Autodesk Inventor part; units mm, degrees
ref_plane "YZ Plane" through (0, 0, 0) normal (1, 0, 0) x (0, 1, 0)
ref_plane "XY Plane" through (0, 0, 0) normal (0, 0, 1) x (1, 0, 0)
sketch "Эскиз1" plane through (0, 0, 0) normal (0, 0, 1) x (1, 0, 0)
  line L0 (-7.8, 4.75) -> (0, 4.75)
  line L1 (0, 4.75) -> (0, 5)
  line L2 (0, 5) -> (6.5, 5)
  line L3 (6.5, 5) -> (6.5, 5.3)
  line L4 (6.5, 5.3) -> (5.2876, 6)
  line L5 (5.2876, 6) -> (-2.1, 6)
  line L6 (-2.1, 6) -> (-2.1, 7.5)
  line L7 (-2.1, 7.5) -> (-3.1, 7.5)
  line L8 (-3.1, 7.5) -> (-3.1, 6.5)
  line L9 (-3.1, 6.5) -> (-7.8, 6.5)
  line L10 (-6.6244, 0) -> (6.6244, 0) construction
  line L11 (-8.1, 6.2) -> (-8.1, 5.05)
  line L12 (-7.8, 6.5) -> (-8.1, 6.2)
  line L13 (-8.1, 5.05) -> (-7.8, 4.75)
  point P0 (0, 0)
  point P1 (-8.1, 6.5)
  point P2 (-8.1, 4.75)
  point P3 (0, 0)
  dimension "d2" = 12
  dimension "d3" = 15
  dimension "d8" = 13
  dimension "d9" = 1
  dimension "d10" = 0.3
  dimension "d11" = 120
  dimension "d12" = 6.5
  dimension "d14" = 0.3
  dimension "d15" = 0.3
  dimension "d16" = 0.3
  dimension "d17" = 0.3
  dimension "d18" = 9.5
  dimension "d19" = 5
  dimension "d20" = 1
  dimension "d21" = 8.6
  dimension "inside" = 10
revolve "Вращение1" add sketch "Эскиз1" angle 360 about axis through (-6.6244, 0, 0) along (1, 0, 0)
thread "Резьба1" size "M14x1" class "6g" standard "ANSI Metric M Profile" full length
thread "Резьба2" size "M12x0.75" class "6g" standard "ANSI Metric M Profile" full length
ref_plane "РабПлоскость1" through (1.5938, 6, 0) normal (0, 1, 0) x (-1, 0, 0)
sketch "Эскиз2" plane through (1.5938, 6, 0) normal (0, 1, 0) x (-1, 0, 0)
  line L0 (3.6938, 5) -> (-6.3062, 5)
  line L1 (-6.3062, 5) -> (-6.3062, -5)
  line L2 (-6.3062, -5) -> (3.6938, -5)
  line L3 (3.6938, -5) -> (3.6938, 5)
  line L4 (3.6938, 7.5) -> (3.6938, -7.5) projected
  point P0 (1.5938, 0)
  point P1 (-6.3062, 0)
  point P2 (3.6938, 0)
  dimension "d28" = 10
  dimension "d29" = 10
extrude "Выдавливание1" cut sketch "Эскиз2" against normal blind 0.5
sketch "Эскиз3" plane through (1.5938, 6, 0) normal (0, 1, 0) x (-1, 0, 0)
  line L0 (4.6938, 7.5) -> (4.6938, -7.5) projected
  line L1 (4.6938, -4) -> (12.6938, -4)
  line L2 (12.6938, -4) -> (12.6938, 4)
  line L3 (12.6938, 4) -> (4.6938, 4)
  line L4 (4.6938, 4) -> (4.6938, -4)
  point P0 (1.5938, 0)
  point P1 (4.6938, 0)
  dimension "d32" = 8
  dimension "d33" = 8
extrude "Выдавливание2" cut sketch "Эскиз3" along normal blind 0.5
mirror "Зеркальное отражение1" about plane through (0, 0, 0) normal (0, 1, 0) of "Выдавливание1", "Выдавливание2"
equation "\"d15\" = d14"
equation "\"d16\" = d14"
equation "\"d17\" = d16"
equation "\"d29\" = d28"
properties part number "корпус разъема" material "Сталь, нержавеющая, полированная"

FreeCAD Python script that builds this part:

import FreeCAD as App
import Part
import Sketcher
Q = App.Units.Quantity


def add_polygon(sketch, points):
    """Adds a closed chain of lines whose ends are joined by coincident constraints."""
    first, n = sketch.GeometryCount, len(points)
    for a, b in zip(points, points[1:] + points[:1]):
        sketch.addGeometry(Part.LineSegment(App.Vector(*a, 0), App.Vector(*b, 0)), False)
    for i in range(n):
        sketch.addConstraint(Sketcher.Constraint("Coincident", first + i, 2, first + (i + 1) % n, 1))

doc = App.newDocument("Part")
body = doc.addObject("PartDesign::Body", "Body")

# Sketch on XY plane
sketch1 = doc.addObject("Sketcher::SketchObject", "Sketch")
body.addObject(sketch1)
sketch1.AttachmentSupport = (doc.XY_Plane, [""])
sketch1.MapMode = "FlatFace"
add_polygon(sketch1, [(-8.1, 5.05), (-7.8, 4.75), (0, 4.75), (0, 5), (6.5, 5), (6.5, 5.3), (5.29, 6), (-2.1, 6), (-2.1, 7.5), (-3.1, 7.5), (-3.1, 6.5), (-7.8, 6.5), (-8.1, 6.2)])  # lines 0-12
sketch1.addConstraint(Sketcher.Constraint("Horizontal", 1))
sketch1.addConstraint(Sketcher.Constraint("Vertical", 2))
sketch1.addConstraint(Sketcher.Constraint("Horizontal", 3))
sketch1.addConstraint(Sketcher.Constraint("Vertical", 4))
sketch1.addConstraint(Sketcher.Constraint("Horizontal", 6))
sketch1.addConstraint(Sketcher.Constraint("Vertical", 7))
sketch1.addConstraint(Sketcher.Constraint("Horizontal", 8))
sketch1.addConstraint(Sketcher.Constraint("Vertical", 9))
sketch1.addConstraint(Sketcher.Constraint("Horizontal", 10))
sketch1.addConstraint(Sketcher.Constraint("Vertical", 12))
sketch1.addConstraint(Sketcher.Constraint("PointOnObject", 1, 2, -2))
sketch1.addConstraint(Sketcher.Constraint("Perpendicular", 0, 11))
sketch1.addConstraint(Sketcher.Constraint("Vertical", 0, 2, 10, 2))
sketch1.addConstraint(Sketcher.Constraint("Equal", 8, 9))
sketch1.addConstraint(Sketcher.Constraint("Equal", 0, 11))
sketch1.addConstraint(Sketcher.Constraint("DistanceX", 8, 2, 8, 1, Q("1 mm")))
sketch1.addConstraint(Sketcher.Constraint("DistanceX", 3, 1, 3, 2, Q("6.5 mm")))
sketch1.addConstraint(Sketcher.Constraint("DistanceY", 4, 1, 4, 2, Q("0.3 mm")))
sketch1.addConstraint(Sketcher.Constraint("DistanceY", -1, 1, 2, 2, Q("5 mm")))
sketch1.addConstraint(Sketcher.Constraint("DistanceY", 3, 2, 5, 2, Q("1 mm")))
sketch1.addConstraint(Sketcher.Constraint("DistanceX", 11, 2, 9, 2, Q("5 mm")))
sketch1.addConstraint(Sketcher.Constraint("DistanceY", -1, 1, 9, 2, Q("6.5 mm")))
sketch1.addConstraint(Sketcher.Constraint("DistanceX", 6, 2, 4, 2, Q("8.6 mm")))
sketch1.addConstraint(Sketcher.Constraint("DistanceX", 11, 2, 10, 2, Q("0.3 mm")))
sketch1.addConstraint(Sketcher.Constraint("Angle", 5, Q("149.9993 deg")))
sketch1.addConstraint(Sketcher.Constraint("DistanceY", 2, 1, 2, 2, Q("0.25 mm")))
revolution = doc.addObject("PartDesign::Revolution", "Revolution")
body.addObject(revolution)
revolution.Profile = sketch1
revolution.ReferenceAxis = (sketch1, ["H_Axis"])
revolution.Angle = 360

# Sketch on XZ plane
sketch2 = doc.addObject("Sketcher::SketchObject", "Sketch001")
body.addObject(sketch2)
sketch2.AttachmentSupport = (doc.XZ_Plane, [""])
sketch2.MapMode = "FlatFace"
sketch2.AttachmentOffset = App.Placement(App.Vector(0, 0, -6), App.Rotation())
add_polygon(sketch2, [(-2, -5), (-2, 5), (8, 5), (8, -5)])  # lines 0-3
sketch2.addConstraint(Sketcher.Constraint("Vertical", 0))
sketch2.addConstraint(Sketcher.Constraint("Horizontal", 1))
sketch2.addConstraint(Sketcher.Constraint("Vertical", 2))
sketch2.addConstraint(Sketcher.Constraint("Horizontal", 3))
sketch2.addConstraint(Sketcher.Constraint("Equal", 3, 0))
sketch2.addConstraint(Sketcher.Constraint("DistanceX", 1, 1, 1, 2, Q("10 mm")))
sketch2.addConstraint(Sketcher.Constraint("DistanceY", -1, 1, 0, 2, Q("5 mm")))
sketch2.addConstraint(Sketcher.Constraint("DistanceX", 0, 2, -1, 1, Q("2.1 mm")))
pocket1 = doc.addObject("PartDesign::Pocket", "Pocket")
body.addObject(pocket1)
pocket1.Profile = sketch2
pocket1.Length = 0.5
pocket1.Reversed = True

# Sketch on XZ plane
sketch3 = doc.addObject("Sketcher::SketchObject", "Sketch002")
body.addObject(sketch3)
sketch3.AttachmentSupport = (doc.XZ_Plane, [""])
sketch3.MapMode = "FlatFace"
sketch3.AttachmentOffset = App.Placement(App.Vector(0, 0, -6), App.Rotation())
add_polygon(sketch3, [(-11, 4), (-3, 4), (-3, -4), (-11, -4)])  # lines 0-3
sketch3.addConstraint(Sketcher.Constraint("Horizontal", 0))
sketch3.addConstraint(Sketcher.Constraint("Vertical", 1))
sketch3.addConstraint(Sketcher.Constraint("Horizontal", 2))
sketch3.addConstraint(Sketcher.Constraint("Vertical", 3))
sketch3.addConstraint(Sketcher.Constraint("Equal", 2, 1))
sketch3.addConstraint(Sketcher.Constraint("DistanceX", 0, 1, 0, 2, Q("8 mm")))
sketch3.addConstraint(Sketcher.Constraint("DistanceY", -1, 1, 0, 2, Q("4 mm")))
sketch3.addConstraint(Sketcher.Constraint("DistanceX", 0, 2, -1, 1, Q("3.1 mm")))
pocket2 = doc.addObject("PartDesign::Pocket", "Pocket001")
body.addObject(pocket2)
pocket2.Profile = sketch3
pocket2.Length = 0.5
doc.recompute()

mirrored = doc.addObject("PartDesign::Mirrored", "Mirrored")
body.addObject(mirrored)
mirrored.Originals = [pocket1, pocket2]
mirrored.MirrorPlane = (doc.XZ_Plane, [""])
body.Tip = mirrored

doc.recompute()
